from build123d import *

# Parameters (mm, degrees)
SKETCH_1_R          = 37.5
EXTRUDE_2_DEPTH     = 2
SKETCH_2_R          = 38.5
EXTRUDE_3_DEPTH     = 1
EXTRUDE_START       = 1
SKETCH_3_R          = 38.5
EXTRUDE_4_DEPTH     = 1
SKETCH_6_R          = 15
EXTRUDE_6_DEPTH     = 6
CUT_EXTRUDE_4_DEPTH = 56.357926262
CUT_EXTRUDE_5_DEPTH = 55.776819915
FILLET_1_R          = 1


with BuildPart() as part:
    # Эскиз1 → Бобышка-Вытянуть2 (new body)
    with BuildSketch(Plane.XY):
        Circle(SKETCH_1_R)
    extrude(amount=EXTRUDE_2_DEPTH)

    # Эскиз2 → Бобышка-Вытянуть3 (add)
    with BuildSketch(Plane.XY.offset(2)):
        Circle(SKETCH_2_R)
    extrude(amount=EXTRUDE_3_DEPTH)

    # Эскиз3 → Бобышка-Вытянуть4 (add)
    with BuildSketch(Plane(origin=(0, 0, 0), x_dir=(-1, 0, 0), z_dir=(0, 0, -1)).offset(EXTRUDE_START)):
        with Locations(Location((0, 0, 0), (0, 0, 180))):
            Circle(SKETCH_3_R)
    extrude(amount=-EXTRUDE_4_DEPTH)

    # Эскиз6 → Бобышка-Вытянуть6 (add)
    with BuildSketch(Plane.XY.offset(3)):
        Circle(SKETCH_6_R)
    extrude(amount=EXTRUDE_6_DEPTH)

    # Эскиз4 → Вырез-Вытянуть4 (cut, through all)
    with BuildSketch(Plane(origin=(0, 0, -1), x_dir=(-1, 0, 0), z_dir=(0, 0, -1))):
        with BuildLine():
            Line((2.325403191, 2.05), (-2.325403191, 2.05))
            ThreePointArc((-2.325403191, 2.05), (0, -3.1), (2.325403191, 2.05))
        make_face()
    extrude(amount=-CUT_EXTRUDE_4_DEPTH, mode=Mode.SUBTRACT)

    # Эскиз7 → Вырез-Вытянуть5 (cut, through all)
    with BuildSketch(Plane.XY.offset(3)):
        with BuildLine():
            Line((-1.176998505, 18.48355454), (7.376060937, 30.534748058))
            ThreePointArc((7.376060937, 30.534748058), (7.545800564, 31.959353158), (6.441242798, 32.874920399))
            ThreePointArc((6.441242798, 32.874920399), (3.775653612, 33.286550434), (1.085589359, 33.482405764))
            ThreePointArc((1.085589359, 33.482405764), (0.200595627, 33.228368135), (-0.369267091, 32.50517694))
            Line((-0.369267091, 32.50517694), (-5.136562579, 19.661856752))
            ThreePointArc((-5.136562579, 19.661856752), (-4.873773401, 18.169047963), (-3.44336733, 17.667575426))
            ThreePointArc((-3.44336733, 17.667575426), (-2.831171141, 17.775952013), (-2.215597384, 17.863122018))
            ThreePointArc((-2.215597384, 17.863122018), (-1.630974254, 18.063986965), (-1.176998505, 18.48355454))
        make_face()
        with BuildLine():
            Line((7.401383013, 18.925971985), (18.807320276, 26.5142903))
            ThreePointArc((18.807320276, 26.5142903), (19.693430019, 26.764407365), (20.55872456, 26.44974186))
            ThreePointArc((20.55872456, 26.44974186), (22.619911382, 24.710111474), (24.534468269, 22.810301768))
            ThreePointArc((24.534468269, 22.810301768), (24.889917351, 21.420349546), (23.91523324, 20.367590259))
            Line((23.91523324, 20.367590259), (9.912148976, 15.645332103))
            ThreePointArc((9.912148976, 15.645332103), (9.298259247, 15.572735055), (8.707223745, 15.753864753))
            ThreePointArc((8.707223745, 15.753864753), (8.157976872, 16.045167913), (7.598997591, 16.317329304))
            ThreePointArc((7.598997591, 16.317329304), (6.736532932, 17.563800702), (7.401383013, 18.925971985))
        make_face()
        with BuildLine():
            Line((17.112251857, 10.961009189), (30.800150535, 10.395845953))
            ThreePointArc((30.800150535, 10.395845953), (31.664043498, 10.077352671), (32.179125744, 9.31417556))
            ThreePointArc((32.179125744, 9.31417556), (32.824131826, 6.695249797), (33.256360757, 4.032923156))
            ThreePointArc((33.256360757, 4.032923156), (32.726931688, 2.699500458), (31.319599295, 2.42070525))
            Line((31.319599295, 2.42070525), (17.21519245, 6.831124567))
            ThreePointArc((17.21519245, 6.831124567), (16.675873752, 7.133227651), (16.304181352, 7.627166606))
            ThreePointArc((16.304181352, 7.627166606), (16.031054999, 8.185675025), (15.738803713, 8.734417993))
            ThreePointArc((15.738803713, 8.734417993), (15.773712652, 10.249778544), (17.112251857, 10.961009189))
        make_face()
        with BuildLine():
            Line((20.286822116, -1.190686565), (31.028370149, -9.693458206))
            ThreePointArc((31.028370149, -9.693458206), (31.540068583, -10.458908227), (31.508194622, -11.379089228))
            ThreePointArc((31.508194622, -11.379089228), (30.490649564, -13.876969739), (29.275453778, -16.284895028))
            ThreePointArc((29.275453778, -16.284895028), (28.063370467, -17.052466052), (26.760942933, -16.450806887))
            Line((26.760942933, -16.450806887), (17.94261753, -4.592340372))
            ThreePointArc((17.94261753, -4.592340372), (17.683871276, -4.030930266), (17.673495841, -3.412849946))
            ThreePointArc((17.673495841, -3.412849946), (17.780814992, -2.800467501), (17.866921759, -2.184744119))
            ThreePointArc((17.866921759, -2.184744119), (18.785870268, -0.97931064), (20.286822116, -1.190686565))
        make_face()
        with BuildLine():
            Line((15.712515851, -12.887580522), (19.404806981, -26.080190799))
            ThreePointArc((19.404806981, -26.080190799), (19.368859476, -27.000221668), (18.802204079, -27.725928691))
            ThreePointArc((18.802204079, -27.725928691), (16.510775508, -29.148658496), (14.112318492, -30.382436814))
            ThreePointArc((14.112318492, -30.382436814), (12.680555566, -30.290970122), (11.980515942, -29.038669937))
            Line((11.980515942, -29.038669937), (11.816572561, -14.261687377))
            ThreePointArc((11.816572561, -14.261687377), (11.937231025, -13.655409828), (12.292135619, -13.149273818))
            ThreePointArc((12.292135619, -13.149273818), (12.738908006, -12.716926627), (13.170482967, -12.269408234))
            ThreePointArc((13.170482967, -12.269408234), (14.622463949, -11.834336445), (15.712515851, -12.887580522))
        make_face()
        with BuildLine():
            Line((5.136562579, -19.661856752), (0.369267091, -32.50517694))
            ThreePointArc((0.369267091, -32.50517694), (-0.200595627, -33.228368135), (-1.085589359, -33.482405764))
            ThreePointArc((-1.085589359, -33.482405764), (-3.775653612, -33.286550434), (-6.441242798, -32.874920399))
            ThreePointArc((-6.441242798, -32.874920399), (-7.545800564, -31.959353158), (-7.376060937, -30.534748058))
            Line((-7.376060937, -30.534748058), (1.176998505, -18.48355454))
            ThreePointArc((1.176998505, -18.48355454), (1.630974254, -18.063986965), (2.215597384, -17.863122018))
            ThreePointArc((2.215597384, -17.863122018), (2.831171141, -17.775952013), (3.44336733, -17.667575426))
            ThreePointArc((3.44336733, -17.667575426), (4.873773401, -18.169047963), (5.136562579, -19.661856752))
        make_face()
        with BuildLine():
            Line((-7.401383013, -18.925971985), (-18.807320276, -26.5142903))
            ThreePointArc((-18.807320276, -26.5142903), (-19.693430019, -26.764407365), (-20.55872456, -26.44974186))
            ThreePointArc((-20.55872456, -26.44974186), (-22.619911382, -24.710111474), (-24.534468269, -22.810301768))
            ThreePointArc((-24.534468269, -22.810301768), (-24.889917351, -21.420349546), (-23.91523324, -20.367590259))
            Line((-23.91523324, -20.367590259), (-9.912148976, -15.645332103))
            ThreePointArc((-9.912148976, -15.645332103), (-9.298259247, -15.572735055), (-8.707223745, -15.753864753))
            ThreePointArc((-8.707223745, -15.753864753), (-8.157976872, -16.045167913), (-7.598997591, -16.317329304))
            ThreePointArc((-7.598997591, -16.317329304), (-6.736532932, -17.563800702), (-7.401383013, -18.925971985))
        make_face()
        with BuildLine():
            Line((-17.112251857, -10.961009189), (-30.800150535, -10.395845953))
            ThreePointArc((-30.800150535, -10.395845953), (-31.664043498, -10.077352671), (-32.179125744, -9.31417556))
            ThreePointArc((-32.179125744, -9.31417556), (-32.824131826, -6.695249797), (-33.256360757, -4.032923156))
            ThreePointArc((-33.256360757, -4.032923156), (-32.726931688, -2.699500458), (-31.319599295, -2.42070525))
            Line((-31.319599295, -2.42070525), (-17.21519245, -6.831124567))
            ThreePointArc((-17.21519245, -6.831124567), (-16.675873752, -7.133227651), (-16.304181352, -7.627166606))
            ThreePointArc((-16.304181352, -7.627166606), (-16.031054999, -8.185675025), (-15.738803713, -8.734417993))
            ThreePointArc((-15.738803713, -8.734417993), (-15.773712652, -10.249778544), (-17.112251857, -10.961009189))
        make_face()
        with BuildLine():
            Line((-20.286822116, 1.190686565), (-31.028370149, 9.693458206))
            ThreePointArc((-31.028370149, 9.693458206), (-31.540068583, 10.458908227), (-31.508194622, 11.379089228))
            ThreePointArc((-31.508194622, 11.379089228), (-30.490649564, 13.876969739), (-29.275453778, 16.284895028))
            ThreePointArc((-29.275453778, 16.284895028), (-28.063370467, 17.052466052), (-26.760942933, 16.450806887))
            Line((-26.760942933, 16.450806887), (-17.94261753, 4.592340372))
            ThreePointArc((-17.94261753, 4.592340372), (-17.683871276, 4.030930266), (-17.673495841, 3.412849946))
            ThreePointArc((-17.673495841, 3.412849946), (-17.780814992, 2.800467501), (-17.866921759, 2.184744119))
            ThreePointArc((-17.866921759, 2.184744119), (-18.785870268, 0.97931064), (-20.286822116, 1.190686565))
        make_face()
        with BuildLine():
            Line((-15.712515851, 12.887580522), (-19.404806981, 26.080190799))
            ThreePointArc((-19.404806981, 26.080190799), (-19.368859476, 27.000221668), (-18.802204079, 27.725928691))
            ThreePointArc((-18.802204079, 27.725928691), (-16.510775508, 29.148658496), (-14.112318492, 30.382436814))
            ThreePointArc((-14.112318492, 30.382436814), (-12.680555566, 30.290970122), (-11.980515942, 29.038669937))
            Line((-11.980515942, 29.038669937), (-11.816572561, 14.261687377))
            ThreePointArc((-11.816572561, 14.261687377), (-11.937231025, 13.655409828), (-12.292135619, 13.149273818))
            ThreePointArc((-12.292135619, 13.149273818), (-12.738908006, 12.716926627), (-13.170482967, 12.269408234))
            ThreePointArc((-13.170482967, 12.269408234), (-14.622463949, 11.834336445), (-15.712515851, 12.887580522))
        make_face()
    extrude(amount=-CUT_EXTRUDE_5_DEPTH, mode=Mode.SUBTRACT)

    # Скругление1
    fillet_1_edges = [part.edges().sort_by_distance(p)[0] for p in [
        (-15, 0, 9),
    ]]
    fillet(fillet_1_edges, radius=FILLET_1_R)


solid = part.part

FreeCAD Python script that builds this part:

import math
import FreeCAD as App
import Part
import Sketcher
from FreeCAD import Vector


def edges_at(feature, points):
    """Names of the edges that pass closest to the given points."""
    edges = feature.Shape.Edges
    near = lambda p: min(range(len(edges)), key=lambda i: edges[i].distToShape(Part.Vertex(*p))[0])
    return sorted({f"Edge{near(p) + 1}" for p in points})

doc = App.newDocument("Part")
body = doc.addObject("PartDesign::Body", "Body")

# Sketch on XY plane
sketch1 = body.newObject("Sketcher::SketchObject", "Sketch")
sketch1.AttachmentSupport = (doc.getObject("XY_Plane"), [""])
sketch1.MapMode = "FlatFace"
sketch1.addGeometry(Part.Circle(Vector(0, 0, 0), Vector(0, 0, 1), 37.5), False)
sketch1.addConstraint(Sketcher.Constraint("Coincident", 0, 3, -1, 1))
sketch1.addConstraint(Sketcher.Constraint("Diameter", 0, 75.0))
pad1 = body.newObject("PartDesign::Pad", "Pad")
pad1.Profile = sketch1
pad1.Length = 2

# Sketch on XY plane
sketch2 = body.newObject("Sketcher::SketchObject", "Sketch001")
sketch2.AttachmentSupport = (doc.getObject("XY_Plane"), [""])
sketch2.MapMode = "FlatFace"
sketch2.AttachmentOffset = App.Placement(Vector(0, 0, 2), App.Rotation())
sketch2.addGeometry(Part.Circle(Vector(0, 0, 0), Vector(0, 0, 1), 38.5), False)
sketch2.addConstraint(Sketcher.Constraint("Coincident", 0, 3, -1, 1))
sketch2.addConstraint(Sketcher.Constraint("Diameter", 0, 77.0))
pad2 = body.newObject("PartDesign::Pad", "Pad001")
pad2.Profile = sketch2
pad2.Length = 1

# Sketch on XY plane
sketch3 = body.newObject("Sketcher::SketchObject", "Sketch002")
sketch3.AttachmentSupport = (doc.getObject("XY_Plane"), [""])
sketch3.MapMode = "FlatFace"
sketch3.AttachmentOffset = App.Placement(Vector(0, 0, -1), App.Rotation())
sketch3.addGeometry(Part.Circle(Vector(0, 0, 0), Vector(0, 0, 1), 38.5), False)
sketch3.addConstraint(Sketcher.Constraint("Coincident", 0, 3, -1, 1))
sketch3.addConstraint(Sketcher.Constraint("Diameter", 0, 77.0))
pad3 = body.newObject("PartDesign::Pad", "Pad002")
pad3.Profile = sketch3
pad3.Length = 1

# Sketch on XY plane
sketch4 = body.newObject("Sketcher::SketchObject", "Sketch003")
sketch4.AttachmentSupport = (doc.getObject("XY_Plane"), [""])
sketch4.MapMode = "FlatFace"
sketch4.AttachmentOffset = App.Placement(Vector(0, 0, 3), App.Rotation())
sketch4.addGeometry(Part.Circle(Vector(0, 0, 0), Vector(0, 0, 1), 15), False)
sketch4.addConstraint(Sketcher.Constraint("Coincident", 0, 3, -1, 1))
sketch4.addConstraint(Sketcher.Constraint("Diameter", 0, 30.0))
pad4 = body.newObject("PartDesign::Pad", "Pad003")
pad4.Profile = sketch4
pad4.Length = 6

# Sketch on XY plane
sketch5 = body.newObject("Sketcher::SketchObject", "Sketch004")
sketch5.AttachmentSupport = (doc.getObject("XY_Plane"), [""])
sketch5.MapMode = "FlatFace"
sketch5.AttachmentOffset = App.Placement(Vector(0, 0, -1), App.Rotation())
sketch5.addGeometry(Part.LineSegment(Vector(-2.325403, 2.05, 0), Vector(2.325403, 2.05, 0)), False)
sketch5.addGeometry(Part.ArcOfCircle(Part.Circle(Vector(0, 0, 0), Vector(0, 0, 1), 3.1), math.radians(138.601645), math.radians(401.398355)), False)
sketch5.addConstraint(Sketcher.Constraint("Coincident", 0, 1, 1, 1))
sketch5.addConstraint(Sketcher.Constraint("Coincident", 1, 2, 0, 2))
sketch5.addConstraint(Sketcher.Constraint("Horizontal", 0))
sketch5.addConstraint(Sketcher.Constraint("Coincident", 1, 3, -1, 1))
sketch5.addConstraint(Sketcher.Constraint("Radius", 1, 3.1))
sketch5.addConstraint(Sketcher.Constraint("DistanceY", -1, 1, 0, 1, 2.05))
pocket1 = body.newObject("PartDesign::Pocket", "Pocket")
pocket1.Profile = sketch5
pocket1.Type = "ThroughAll"
pocket1.Reversed = True

# Sketch on XY plane
sketch6 = body.newObject("Sketcher::SketchObject", "Sketch005")
sketch6.AttachmentSupport = (doc.getObject("XY_Plane"), [""])
sketch6.MapMode = "FlatFace"
sketch6.AttachmentOffset = App.Placement(Vector(0, 0, 3), App.Rotation())
sketch6.addGeometry(Part.LineSegment(Vector(-1.176999, 18.483555, 0), Vector(7.376061, 30.534748, 0)), False)
sketch6.addGeometry(Part.ArcOfCircle(Part.Circle(Vector(6.152829, 31.402909, 0), Vector(0, 0, 1), 1.5), math.radians(-35.364357), math.radians(78.914367)), False)
sketch6.addGeometry(Part.ArcOfCircle(Part.Circle(Vector(0, 0, 0), Vector(0, 0, 1), 33.5), math.radians(78.914367), math.radians(88.142968)), False)
sketch6.addGeometry(Part.ArcOfCircle(Part.Circle(Vector(1.036981, 31.983194, 0), Vector(0, 0, 1), 1.5), math.radians(88.142968), math.radians(159.635643)), False)
sketch6.addGeometry(Part.LineSegment(Vector(-0.369267, 32.505177, 0), Vector(-5.136563, 19.661857, 0)), False)
sketch6.addGeometry(Part.ArcOfCircle(Part.Circle(Vector(-3.730315, 19.139873, 0), Vector(0, 0, 1), 1.5), math.radians(159.635643), math.radians(281.028554)), False)
sketch6.addGeometry(Part.ArcOfCircle(Part.Circle(Vector(0, 0, 0), Vector(0, 0, 1), 18), math.radians(97.070396), math.radians(101.028554)), False)
sketch6.addGeometry(Part.ArcOfCircle(Part.Circle(Vector(-2.40023, 19.351716, 0), Vector(0, 0, 1), 1.5), math.radians(-82.929604), math.radians(-35.364357)), False)
sketch6.addGeometry(Part.LineSegment(Vector(18.80732, 26.51429, 0), Vector(7.401383, 18.925972, 0)), False)
sketch6.addGeometry(Part.ArcOfCircle(Part.Circle(Vector(8.232247, 17.677107, 0), Vector(0, 0, 1), 1.5), math.radians(123.635642), math.radians(245.028554)), False)
sketch6.addGeometry(Part.ArcOfCircle(Part.Circle(Vector(0, 0, 0), Vector(0, 0, 1), 18), math.radians(61.070397), math.radians(65.028554)), False)
sketch6.addGeometry(Part.ArcOfCircle(Part.Circle(Vector(9.432826, 17.066687, 0), Vector(0, 0, 1), 1.5), math.radians(-118.929603), math.radians(-71.364357)), False)
sketch6.addGeometry(Part.LineSegment(Vector(9.912149, 15.645332, 0), Vector(23.915233, 20.36759, 0)), False)
sketch6.addGeometry(Part.ArcOfCircle(Part.Circle(Vector(23.43591, 21.788945, 0), Vector(0, 0, 1), 1.5), math.radians(-71.364357), math.radians(42.914367)), False)
sketch6.addGeometry(Part.ArcOfCircle(Part.Circle(Vector(0, 0, 0), Vector(0, 0, 1), 33.5), math.radians(42.914367), math.radians(52.142968)), False)
sketch6.addGeometry(Part.ArcOfCircle(Part.Circle(Vector(19.638185, 25.265425, 0), Vector(0, 0, 1), 1.5), math.radians(52.142968), math.radians(123.635642)), False)
sketch6.addGeometry(Part.LineSegment(Vector(30.800151, 10.395846, 0), Vector(17.112252, 10.961009, 0)), False)
sketch6.addGeometry(Part.ArcOfCircle(Part.Circle(Vector(17.050371, 9.462286, 0), Vector(0, 0, 1), 1.5), math.radians(87.635643), math.radians(209.028554)), False)
sketch6.addGeometry(Part.ArcOfCircle(Part.Circle(Vector(0, 0, 0), Vector(0, 0, 1), 18), math.radians(25.070396), math.radians(29.028554)), False)
sketch6.addGeometry(Part.ArcOfCircle(Part.Circle(Vector(17.662863, 8.262764, 0), Vector(0, 0, 1), 1.5), math.radians(-154.929603), math.radians(-107.364357)), False)
sketch6.addGeometry(Part.LineSegment(Vector(17.215192, 6.831125, 0), Vector(31.319599, 2.420705, 0)), False)
sketch6.addGeometry(Part.ArcOfCircle(Part.Circle(Vector(31.76727, 3.852345, 0), Vector(0, 0, 1), 1.5), math.radians(-107.364357), math.radians(6.914367)), False)
sketch6.addGeometry(Part.ArcOfCircle(Part.Circle(Vector(0, 0, 0), Vector(0, 0, 1), 33.5), math.radians(6.914367), math.radians(16.142968)), False)
sketch6.addGeometry(Part.ArcOfCircle(Part.Circle(Vector(30.738269, 8.897123, 0), Vector(0, 0, 1), 1.5), math.radians(16.142968), math.radians(87.635643)), False)
sketch6.addGeometry(Part.LineSegment(Vector(31.02837, -9.693458, 0), Vector(20.286822, -1.190687, 0)), False)
sketch6.addGeometry(Part.ArcOfCircle(Part.Circle(Vector(19.355832, -2.366806, 0), Vector(0, 0, 1), 1.5), math.radians(51.635643), math.radians(173.028554)), False)
sketch6.addGeometry(Part.ArcOfCircle(Part.Circle(Vector(0, 0, 0), Vector(0, 0, 1), 18), math.radians(-10.929604), math.radians(-6.971446)), False)
sketch6.addGeometry(Part.ArcOfCircle(Part.Circle(Vector(19.146287, -3.697254, 0), Vector(0, 0, 1), 1.5), math.radians(169.070397), math.radians(216.635642)), False)
sketch6.addGeometry(Part.LineSegment(Vector(17.942618, -4.59234, 0), Vector(26.760943, -16.450807, 0)), False)
sketch6.addGeometry(Part.ArcOfCircle(Part.Circle(Vector(27.964613, -15.555721, 0), Vector(0, 0, 1), 1.5), math.radians(-143.364357), math.radians(-29.085633)), False)
sketch6.addGeometry(Part.ArcOfCircle(Part.Circle(Vector(0, 0, 0), Vector(0, 0, 1), 33.5), math.radians(-29.085633), math.radians(-19.857032)), False)
sketch6.addGeometry(Part.ArcOfCircle(Part.Circle(Vector(30.09738, -10.869578, 0), Vector(0, 0, 1), 1.5), math.radians(-19.857032), math.radians(51.635642)), False)
sketch6.addGeometry(Part.LineSegment(Vector(19.404807, -26.080191, 0), Vector(15.712516, -12.887581, 0)), False)
sketch6.addGeometry(Part.ArcOfCircle(Part.Circle(Vector(14.268023, -13.291859, 0), Vector(0, 0, 1), 1.5), math.radians(15.635643), math.radians(137.028554)), False)
sketch6.addGeometry(Part.ArcOfCircle(Part.Circle(Vector(0, -0.000001, 0), Vector(0, 0, 1), 17.999999), math.radians(-46.929604), math.radians(-42.971445)), False)
sketch6.addGeometry(Part.ArcOfCircle(Part.Circle(Vector(13.31648, -14.245047, 0), Vector(0, 0, 1), 1.5), math.radians(133.070396), math.radians(180.635643)), False)
sketch6.addGeometry(Part.LineSegment(Vector(11.816573, -14.261687, 0), Vector(11.980516, -29.03867, 0)), False)
sketch6.addGeometry(Part.ArcOfCircle(Part.Circle(Vector(13.480424, -29.022029, 0), Vector(0, 0, 1), 1.5), math.radians(-179.364358), math.radians(-65.085633)), False)
sketch6.addGeometry(Part.ArcOfCircle(Part.Circle(Vector(0, 0, 0), Vector(0, 0, 1), 33.5), math.radians(-65.085633), math.radians(-55.857032)), False)
sketch6.addGeometry(Part.ArcOfCircle(Part.Circle(Vector(17.960314, -26.484469, 0), Vector(0, 0, 1), 1.5), math.radians(-55.857032), math.radians(15.635642)), False)
sketch6.addGeometry(Part.LineSegment(Vector(0.369267, -32.505177, 0), Vector(5.136563, -19.661857, 0)), False)
sketch6.addGeometry(Part.ArcOfCircle(Part.Circle(Vector(3.730315, -19.139873, 0), Vector(0, 0, 1), 1.5), math.radians(-20.364357), math.radians(101.028554)), False)
sketch6.addGeometry(Part.ArcOfCircle(Part.Circle(Vector(0, 0, 0), Vector(0, 0, 1), 18), math.radians(-82.929604), math.radians(-78.971446)), False)
sketch6.addGeometry(Part.ArcOfCircle(Part.Circle(Vector(2.40023, -19.351716, 0), Vector(0, 0, 1), 1.5), math.radians(97.070396), math.radians(144.635643)), False)
sketch6.addGeometry(Part.LineSegment(Vector(1.176999, -18.483555, 0), Vector(-7.376061, -30.534748, 0)), False)
sketch6.addGeometry(Part.ArcOfCircle(Part.Circle(Vector(-6.152829, -31.402909, 0), Vector(0, 0, 1), 1.5), math.radians(144.635643), math.radians(258.914367)), False)
sketch6.addGeometry(Part.ArcOfCircle(Part.Circle(Vector(0, 0, 0), Vector(0, 0, 1), 33.5), math.radians(-101.085633), math.radians(-91.857032)), False)
sketch6.addGeometry(Part.ArcOfCircle(Part.Circle(Vector(-1.036981, -31.983194, 0), Vector(0, 0, 1), 1.5), math.radians(-91.857032), math.radians(-20.364357)), False)
sketch6.addGeometry(Part.LineSegment(Vector(-18.80732, -26.51429, 0), Vector(-7.401383, -18.925972, 0)), False)
sketch6.addGeometry(Part.ArcOfCircle(Part.Circle(Vector(-8.232247, -17.677107, 0), Vector(0, 0, 1), 1.5), math.radians(-56.364358), math.radians(65.028554)), False)
sketch6.addGeometry(Part.ArcOfCircle(Part.Circle(Vector(0, 0, 0), Vector(0, 0, 1), 18), math.radians(-118.929603), math.radians(-114.971446)), False)
sketch6.addGeometry(Part.ArcOfCircle(Part.Circle(Vector(-9.432826, -17.066687, 0), Vector(0, 0, 1), 1.5), math.radians(61.070397), math.radians(108.635643)), False)
sketch6.addGeometry(Part.LineSegment(Vector(-9.912149, -15.645332, 0), Vector(-23.915233, -20.36759, 0)), False)
sketch6.addGeometry(Part.ArcOfCircle(Part.Circle(Vector(-23.43591, -21.788945, 0), Vector(0, 0, 1), 1.5), math.radians(108.635643), math.radians(222.914367)), False)
sketch6.addGeometry(Part.ArcOfCircle(Part.Circle(Vector(0, 0, 0), Vector(0, 0, 1), 33.5), math.radians(-137.085633), math.radians(-127.857032)), False)
sketch6.addGeometry(Part.ArcOfCircle(Part.Circle(Vector(-19.638185, -25.265425, 0), Vector(0, 0, 1), 1.5), math.radians(-127.857032), math.radians(-56.364358)), False)
sketch6.addGeometry(Part.LineSegment(Vector(-30.800151, -10.395846, 0), Vector(-17.112252, -10.961009, 0)), False)
sketch6.addGeometry(Part.ArcOfCircle(Part.Circle(Vector(-17.050371, -9.462286, 0), Vector(0, 0, 1), 1.5), math.radians(-92.364357), math.radians(29.028554)), False)
sketch6.addGeometry(Part.ArcOfCircle(Part.Circle(Vector(0, 0, 0), Vector(0, 0, 1), 18), math.radians(-154.929604), math.radians(-150.971446)), False)
sketch6.addGeometry(Part.ArcOfCircle(Part.Circle(Vector(-17.662863, -8.262764, 0), Vector(0, 0, 1), 1.5), math.radians(25.070397), math.radians(72.635643)), False)
sketch6.addGeometry(Part.LineSegment(Vector(-17.215192, -6.831125, 0), Vector(-31.319599, -2.420705, 0)), False)
sketch6.addGeometry(Part.ArcOfCircle(Part.Circle(Vector(-31.76727, -3.852345, 0), Vector(0, 0, 1), 1.5), math.radians(72.635643), math.radians(186.914367)), False)
sketch6.addGeometry(Part.ArcOfCircle(Part.Circle(Vector(0, 0, 0), Vector(0, 0, 1), 33.5), math.radians(-173.085633), math.radians(-163.857032)), False)
sketch6.addGeometry(Part.ArcOfCircle(Part.Circle(Vector(-30.738269, -8.897123, 0), Vector(0, 0, 1), 1.5), math.radians(-163.857032), math.radians(-92.364357)), False)
sketch6.addGeometry(Part.LineSegment(Vector(-31.02837, 9.693458, 0), Vector(-20.286822, 1.190687, 0)), False)
sketch6.addGeometry(Part.ArcOfCircle(Part.Circle(Vector(-19.355832, 2.366806, 0), Vector(0, 0, 1), 1.5), math.radians(-128.364357), math.radians(-6.971446)), False)
sketch6.addGeometry(Part.ArcOfCircle(Part.Circle(Vector(0, 0, 0), Vector(0, 0, 1), 18), math.radians(169.070396), math.radians(173.028554)), False)
sketch6.addGeometry(Part.ArcOfCircle(Part.Circle(Vector(-19.146287, 3.697254, 0), Vector(0, 0, 1), 1.5), math.radians(-10.929603), math.radians(36.635642)), False)
sketch6.addGeometry(Part.LineSegment(Vector(-17.942618, 4.59234, 0), Vector(-26.760943, 16.450807, 0)), False)
sketch6.addGeometry(Part.ArcOfCircle(Part.Circle(Vector(-27.964613, 15.555721, 0), Vector(0, 0, 1), 1.5), math.radians(36.635643), math.radians(150.914367)), False)
sketch6.addGeometry(Part.ArcOfCircle(Part.Circle(Vector(0, 0, 0), Vector(0, 0, 1), 33.5), math.radians(150.914367), math.radians(160.142968)), False)
sketch6.addGeometry(Part.ArcOfCircle(Part.Circle(Vector(-30.09738, 10.869578, 0), Vector(0, 0, 1), 1.5), math.radians(160.142968), math.radians(231.635642)), False)
sketch6.addGeometry(Part.LineSegment(Vector(-19.404807, 26.080191, 0), Vector(-15.712516, 12.887581, 0)), False)
sketch6.addGeometry(Part.ArcOfCircle(Part.Circle(Vector(-14.268023, 13.291859, 0), Vector(0, 0, 1), 1.5), math.radians(-164.364357), math.radians(-42.971446)), False)
sketch6.addGeometry(Part.ArcOfCircle(Part.Circle(Vector(0, 0.000001, 0), Vector(0, 0, 1), 17.999999), math.radians(133.070396), math.radians(137.028555)), False)
sketch6.addGeometry(Part.ArcOfCircle(Part.Circle(Vector(-13.31648, 14.245047, 0), Vector(0, 0, 1), 1.5), math.radians(-46.929604), math.radians(0.635643)), False)
sketch6.addGeometry(Part.LineSegment(Vector(-11.816573, 14.261687, 0), Vector(-11.980516, 29.03867, 0)), False)
sketch6.addGeometry(Part.ArcOfCircle(Part.Circle(Vector(-13.480424, 29.022029, 0), Vector(0, 0, 1), 1.5), math.radians(0.635642), math.radians(114.914367)), False)
sketch6.addGeometry(Part.ArcOfCircle(Part.Circle(Vector(0, 0, 0), Vector(0, 0, 1), 33.5), math.radians(114.914367), math.radians(124.142968)), False)
sketch6.addGeometry(Part.ArcOfCircle(Part.Circle(Vector(-17.960314, 26.484469, 0), Vector(0, 0, 1), 1.5), math.radians(124.142968), math.radians(195.635642)), False)
sketch6.addConstraint(Sketcher.Constraint("Tangent", 0, 2, 1, 1))
sketch6.addConstraint(Sketcher.Constraint("Tangent", 1, 2, 2, 1))
sketch6.addConstraint(Sketcher.Constraint("Tangent", 2, 2, 3, 1))
sketch6.addConstraint(Sketcher.Constraint("Tangent", 3, 2, 4, 1))
sketch6.addConstraint(Sketcher.Constraint("Tangent", 4, 2, 5, 1))
sketch6.addConstraint(Sketcher.Constraint("Tangent", 5, 2, 6, 2))
sketch6.addConstraint(Sketcher.Constraint("Tangent", 6, 1, 7, 1))
sketch6.addConstraint(Sketcher.Constraint("Tangent", 7, 2, 0, 1))
sketch6.addConstraint(Sketcher.Constraint("Tangent", 8, 2, 9, 1))
sketch6.addConstraint(Sketcher.Constraint("Tangent", 9, 2, 10, 2))
sketch6.addConstraint(Sketcher.Constraint("Tangent", 10, 1, 11, 1))
sketch6.addConstraint(Sketcher.Constraint("Tangent", 11, 2, 12, 1))
sketch6.addConstraint(Sketcher.Constraint("Tangent", 12, 2, 13, 1))
sketch6.addConstraint(Sketcher.Constraint("Tangent", 13, 2, 14, 1))
sketch6.addConstraint(Sketcher.Constraint("Tangent", 14, 2, 15, 1))
sketch6.addConstraint(Sketcher.Constraint("Tangent", 15, 2, 8, 1))
sketch6.addConstraint(Sketcher.Constraint("Tangent", 16, 2, 17, 1))
sketch6.addConstraint(Sketcher.Constraint("Tangent", 17, 2, 18, 2))
sketch6.addConstraint(Sketcher.Constraint("Tangent", 18, 1, 19, 1))
sketch6.addConstraint(Sketcher.Constraint("Tangent", 19, 2, 20, 1))
sketch6.addConstraint(Sketcher.Constraint("Tangent", 20, 2, 21, 1))
sketch6.addConstraint(Sketcher.Constraint("Tangent", 21, 2, 22, 1))
sketch6.addConstraint(Sketcher.Constraint("Tangent", 22, 2, 23, 1))
sketch6.addConstraint(Sketcher.Constraint("Tangent", 23, 2, 16, 1))
sketch6.addConstraint(Sketcher.Constraint("Tangent", 24, 2, 25, 1))
sketch6.addConstraint(Sketcher.Constraint("Tangent", 25, 2, 26, 2))
sketch6.addConstraint(Sketcher.Constraint("Tangent", 26, 1, 27, 1))
sketch6.addConstraint(Sketcher.Constraint("Tangent", 27, 2, 28, 1))
sketch6.addConstraint(Sketcher.Constraint("Tangent", 28, 2, 29, 1))
sketch6.addConstraint(Sketcher.Constraint("Tangent", 29, 2, 30, 1))
sketch6.addConstraint(Sketcher.Constraint("Tangent", 30, 2, 31, 1))
sketch6.addConstraint(Sketcher.Constraint("Tangent", 31, 2, 24, 1))
sketch6.addConstraint(Sketcher.Constraint("Tangent", 32, 2, 33, 1))
sketch6.addConstraint(Sketcher.Constraint("Tangent", 33, 2, 34, 2))
sketch6.addConstraint(Sketcher.Constraint("Tangent", 34, 1, 35, 1))
sketch6.addConstraint(Sketcher.Constraint("Tangent", 35, 2, 36, 1))
sketch6.addConstraint(Sketcher.Constraint("Tangent", 36, 2, 37, 1))
sketch6.addConstraint(Sketcher.Constraint("Tangent", 37, 2, 38, 1))
sketch6.addConstraint(Sketcher.Constraint("Tangent", 38, 2, 39, 1))
sketch6.addConstraint(Sketcher.Constraint("Tangent", 39, 2, 32, 1))
sketch6.addConstraint(Sketcher.Constraint("Tangent", 40, 2, 41, 1))
sketch6.addConstraint(Sketcher.Constraint("Tangent", 41, 2, 42, 2))
sketch6.addConstraint(Sketcher.Constraint("Tangent", 42, 1, 43, 1))
sketch6.addConstraint(Sketcher.Constraint("Tangent", 43, 2, 44, 1))
sketch6.addConstraint(Sketcher.Constraint("Tangent", 44, 2, 45, 1))
sketch6.addConstraint(Sketcher.Constraint("Tangent", 45, 2, 46, 1))
sketch6.addConstraint(Sketcher.Constraint("Tangent", 46, 2, 47, 1))
sketch6.addConstraint(Sketcher.Constraint("Tangent", 47, 2, 40, 1))
sketch6.addConstraint(Sketcher.Constraint("Tangent", 48, 2, 49, 1))
sketch6.addConstraint(Sketcher.Constraint("Tangent", 49, 2, 50, 2))
sketch6.addConstraint(Sketcher.Constraint("Tangent", 50, 1, 51, 1))
sketch6.addConstraint(Sketcher.Constraint("Tangent", 51, 2, 52, 1))
sketch6.addConstraint(Sketcher.Constraint("Tangent", 52, 2, 53, 1))
sketch6.addConstraint(Sketcher.Constraint("Tangent", 53, 2, 54, 1))
sketch6.addConstraint(Sketcher.Constraint("Tangent", 54, 2, 55, 1))
sketch6.addConstraint(Sketcher.Constraint("Tangent", 55, 2, 48, 1))
sketch6.addConstraint(Sketcher.Constraint("Tangent", 56, 2, 57, 1))
sketch6.addConstraint(Sketcher.Constraint("Tangent", 57, 2, 58, 2))
sketch6.addConstraint(Sketcher.Constraint("Tangent", 58, 1, 59, 1))
sketch6.addConstraint(Sketcher.Constraint("Tangent", 59, 2, 60, 1))
sketch6.addConstraint(Sketcher.Constraint("Tangent", 60, 2, 61, 1))
sketch6.addConstraint(Sketcher.Constraint("Tangent", 61, 2, 62, 1))
sketch6.addConstraint(Sketcher.Constraint("Tangent", 62, 2, 63, 1))
sketch6.addConstraint(Sketcher.Constraint("Tangent", 63, 2, 56, 1))
sketch6.addConstraint(Sketcher.Constraint("Tangent", 64, 2, 65, 1))
sketch6.addConstraint(Sketcher.Constraint("Tangent", 65, 2, 66, 2))
sketch6.addConstraint(Sketcher.Constraint("Tangent", 66, 1, 67, 1))
sketch6.addConstraint(Sketcher.Constraint("Tangent", 67, 2, 68, 1))
sketch6.addConstraint(Sketcher.Constraint("Tangent", 68, 2, 69, 1))
sketch6.addConstraint(Sketcher.Constraint("Tangent", 69, 2, 70, 1))
sketch6.addConstraint(Sketcher.Constraint("Tangent", 70, 2, 71, 1))
sketch6.addConstraint(Sketcher.Constraint("Tangent", 71, 2, 64, 1))
sketch6.addConstraint(Sketcher.Constraint("Tangent", 72, 2, 73, 1))
sketch6.addConstraint(Sketcher.Constraint("Tangent", 73, 2, 74, 2))
sketch6.addConstraint(Sketcher.Constraint("Tangent", 74, 1, 75, 1))
sketch6.addConstraint(Sketcher.Constraint("Tangent", 75, 2, 76, 1))
sketch6.addConstraint(Sketcher.Constraint("Tangent", 76, 2, 77, 1))
sketch6.addConstraint(Sketcher.Constraint("Tangent", 77, 2, 78, 1))
sketch6.addConstraint(Sketcher.Constraint("Tangent", 78, 2, 79, 1))
sketch6.addConstraint(Sketcher.Constraint("Tangent", 79, 2, 72, 1))
sketch6.addConstraint(Sketcher.Constraint("Coincident", 2, 3, -1, 1))
sketch6.addConstraint(Sketcher.Constraint("Coincident", 6, 3, -1, 1))
sketch6.addConstraint(Sketcher.Constraint("Coincident", 10, 3, -1, 1))
sketch6.addConstraint(Sketcher.Constraint("Coincident", 14, 3, -1, 1))
sketch6.addConstraint(Sketcher.Constraint("Coincident", 18, 3, -1, 1))
sketch6.addConstraint(Sketcher.Constraint("Coincident", 22, 3, -1, 1))
sketch6.addConstraint(Sketcher.Constraint("Coincident", 26, 3, -1, 1))
sketch6.addConstraint(Sketcher.Constraint("Coincident", 30, 3, -1, 1))
sketch6.addConstraint(Sketcher.Constraint("Coincident", 34, 3, -1, 1))
sketch6.addConstraint(Sketcher.Constraint("Coincident", 38, 3, -1, 1))
sketch6.addConstraint(Sketcher.Constraint("Coincident", 42, 3, -1, 1))
sketch6.addConstraint(Sketcher.Constraint("Coincident", 46, 3, -1, 1))
sketch6.addConstraint(Sketcher.Constraint("Coincident", 50, 3, -1, 1))
sketch6.addConstraint(Sketcher.Constraint("Coincident", 54, 3, -1, 1))
sketch6.addConstraint(Sketcher.Constraint("Coincident", 58, 3, -1, 1))
sketch6.addConstraint(Sketcher.Constraint("Coincident", 62, 3, -1, 1))
sketch6.addConstraint(Sketcher.Constraint("Coincident", 66, 3, -1, 1))
sketch6.addConstraint(Sketcher.Constraint("Coincident", 70, 3, -1, 1))
sketch6.addConstraint(Sketcher.Constraint("Coincident", 74, 3, -1, 1))
sketch6.addConstraint(Sketcher.Constraint("Coincident", 78, 3, -1, 1))
sketch6.addConstraint(Sketcher.Constraint("Equal", 1, 3))
sketch6.addConstraint(Sketcher.Constraint("Equal", 3, 5))
sketch6.addConstraint(Sketcher.Constraint("Equal", 5, 7))
sketch6.addConstraint(Sketcher.Constraint("Equal", 7, 9))
sketch6.addConstraint(Sketcher.Constraint("Equal", 6, 10))
sketch6.addConstraint(Sketcher.Constraint("Equal", 9, 11))
sketch6.addConstraint(Sketcher.Constraint("Equal", 11, 13))
sketch6.addConstraint(Sketcher.Constraint("Equal", 2, 14))
sketch6.addConstraint(Sketcher.Constraint("Equal", 13, 15))
sketch6.addConstraint(Sketcher.Constraint("Equal", 15, 17))
sketch6.addConstraint(Sketcher.Constraint("Equal", 10, 18))
sketch6.addConstraint(Sketcher.Constraint("Equal", 17, 19))
sketch6.addConstraint(Sketcher.Constraint("Equal", 19, 21))
sketch6.addConstraint(Sketcher.Constraint("Equal", 14, 22))
sketch6.addConstraint(Sketcher.Constraint("Equal", 21, 23))
sketch6.addConstraint(Sketcher.Constraint("Equal", 23, 25))
sketch6.addConstraint(Sketcher.Constraint("Equal", 18, 26))
sketch6.addConstraint(Sketcher.Constraint("Equal", 25, 27))
sketch6.addConstraint(Sketcher.Constraint("Equal", 27, 29))
sketch6.addConstraint(Sketcher.Constraint("Equal", 22, 30))
sketch6.addConstraint(Sketcher.Constraint("Equal", 29, 31))
sketch6.addConstraint(Sketcher.Constraint("Equal", 31, 33))
sketch6.addConstraint(Sketcher.Constraint("Equal", 26, 34))
sketch6.addConstraint(Sketcher.Constraint("Equal", 33, 35))
sketch6.addConstraint(Sketcher.Constraint("Equal", 35, 37))
sketch6.addConstraint(Sketcher.Constraint("Equal", 30, 38))
sketch6.addConstraint(Sketcher.Constraint("Equal", 37, 39))
sketch6.addConstraint(Sketcher.Constraint("Equal", 39, 41))
sketch6.addConstraint(Sketcher.Constraint("Equal", 34, 42))
sketch6.addConstraint(Sketcher.Constraint("Equal", 41, 43))
sketch6.addConstraint(Sketcher.Constraint("Equal", 43, 45))
sketch6.addConstraint(Sketcher.Constraint("Equal", 38, 46))
sketch6.addConstraint(Sketcher.Constraint("Equal", 45, 47))
sketch6.addConstraint(Sketcher.Constraint("Equal", 47, 49))
sketch6.addConstraint(Sketcher.Constraint("Equal", 42, 50))
sketch6.addConstraint(Sketcher.Constraint("Equal", 49, 51))
sketch6.addConstraint(Sketcher.Constraint("Equal", 51, 53))
sketch6.addConstraint(Sketcher.Constraint("Equal", 46, 54))
sketch6.addConstraint(Sketcher.Constraint("Equal", 53, 55))
sketch6.addConstraint(Sketcher.Constraint("Equal", 55, 57))
sketch6.addConstraint(Sketcher.Constraint("Equal", 50, 58))
sketch6.addConstraint(Sketcher.Constraint("Equal", 57, 59))
sketch6.addConstraint(Sketcher.Constraint("Equal", 59, 61))
sketch6.addConstraint(Sketcher.Constraint("Equal", 54, 62))
sketch6.addConstraint(Sketcher.Constraint("Equal", 61, 63))
sketch6.addConstraint(Sketcher.Constraint("Equal", 63, 65))
sketch6.addConstraint(Sketcher.Constraint("Equal", 58, 66))
sketch6.addConstraint(Sketcher.Constraint("Equal", 65, 67))
sketch6.addConstraint(Sketcher.Constraint("Equal", 67, 69))
sketch6.addConstraint(Sketcher.Constraint("Equal", 62, 70))
sketch6.addConstraint(Sketcher.Constraint("Equal", 69, 71))
sketch6.addConstraint(Sketcher.Constraint("Equal", 71, 73))
sketch6.addConstraint(Sketcher.Constraint("Equal", 66, 74))
sketch6.addConstraint(Sketcher.Constraint("Equal", 73, 75))
sketch6.addConstraint(Sketcher.Constraint("Equal", 75, 77))
sketch6.addConstraint(Sketcher.Constraint("Equal", 70, 78))
sketch6.addConstraint(Sketcher.Constraint("Equal", 77, 79))
sketch6.addConstraint(Sketcher.Constraint("Symmetric", 4, 2, 40, 2, -1, 1))
sketch6.addConstraint(Sketcher.Constraint("Symmetric", 7, 2, 43, 2, -1, 1))
sketch6.addConstraint(Sketcher.Constraint("Symmetric", 8, 2, 48, 2, -1, 1))
sketch6.addConstraint(Sketcher.Constraint("Symmetric", 11, 2, 51, 2, -1, 1))
sketch6.addConstraint(Sketcher.Constraint("Symmetric", 16, 2, 56, 2, -1, 1))
sketch6.addConstraint(Sketcher.Constraint("Symmetric", 19, 2, 59, 2, -1, 1))
sketch6.addConstraint(Sketcher.Constraint("Symmetric", 24, 2, 64, 2, -1, 1))
sketch6.addConstraint(Sketcher.Constraint("Symmetric", 27, 2, 67, 2, -1, 1))
sketch6.addConstraint(Sketcher.Constraint("Symmetric", 32, 2, 72, 2, -1, 1))
sketch6.addConstraint(Sketcher.Constraint("Symmetric", 35, 2, 75, 2, -1, 1))
sketch6.addConstraint(Sketcher.Constraint("Equal", 4, 8))
sketch6.addConstraint(Sketcher.Constraint("Equal", 0, 12))
sketch6.addConstraint(Sketcher.Constraint("Equal", 8, 16))
sketch6.addConstraint(Sketcher.Constraint("Equal", 12, 20))
sketch6.addConstraint(Sketcher.Constraint("Equal", 16, 24))
sketch6.addConstraint(Sketcher.Constraint("Equal", 20, 28))
sketch6.addConstraint(Sketcher.Constraint("Equal", 24, 32))
sketch6.addConstraint(Sketcher.Constraint("Equal", 28, 36))
sketch6.addConstraint(Sketcher.Constraint("Radius", 6, 18.0))
sketch6.addConstraint(Sketcher.Constraint("Radius", 1, 1.5))
sketch6.addConstraint(Sketcher.Constraint("Radius", 2, 33.5))
sketch6.addConstraint(Sketcher.Constraint("DistanceX", 7, 2, -1, 1, 1.176999))
sketch6.addConstraint(Sketcher.Constraint("DistanceY", -1, 1, 13, 2, 22.810302))
sketch6.addConstraint(Sketcher.Constraint("DistanceX", -1, 1, 20, 2, 31.319599))
sketch6.addConstraint(Sketcher.Constraint("Distance", 0, 14.777892))
sketch6.addConstraint(Sketcher.Constraint("Distance", 4, 13.699561))
sketch6.addConstraint(Sketcher.Constraint("DistanceX", -1, 1, 3, 3, 1.036981))
sketch6.addConstraint(Sketcher.Constraint("DistanceX", -1, 1, 17, 3, 17.050371))
sketch6.addConstraint(Sketcher.Constraint("DistanceX", -1, 1, 25, 3, 19.355832))
sketch6.addConstraint(Sketcher.Constraint("DistanceY", 29, 3, -1, 1, 15.555721))
sketch6.addConstraint(Sketcher.Constraint("DistanceY", 33, 3, -1, 1, 13.291859))
sketch6.addConstraint(Sketcher.Constraint("DistanceX", -1, 1, 35, 3, 13.31648))
sketch6.addConstraint(Sketcher.Constraint("DistanceY", -1, 1, 8, 2, 18.925972))
pocket2 = body.newObject("PartDesign::Pocket", "Pocket001")
pocket2.Profile = sketch6
pocket2.Type = "ThroughAll"
doc.recompute()

fillet = body.newObject("PartDesign::Fillet", "Fillet")
fillet.Base = (pocket2, edges_at(pocket2, [(-15, 0, 9)]))
fillet.Radius = 1

doc.recompute()
